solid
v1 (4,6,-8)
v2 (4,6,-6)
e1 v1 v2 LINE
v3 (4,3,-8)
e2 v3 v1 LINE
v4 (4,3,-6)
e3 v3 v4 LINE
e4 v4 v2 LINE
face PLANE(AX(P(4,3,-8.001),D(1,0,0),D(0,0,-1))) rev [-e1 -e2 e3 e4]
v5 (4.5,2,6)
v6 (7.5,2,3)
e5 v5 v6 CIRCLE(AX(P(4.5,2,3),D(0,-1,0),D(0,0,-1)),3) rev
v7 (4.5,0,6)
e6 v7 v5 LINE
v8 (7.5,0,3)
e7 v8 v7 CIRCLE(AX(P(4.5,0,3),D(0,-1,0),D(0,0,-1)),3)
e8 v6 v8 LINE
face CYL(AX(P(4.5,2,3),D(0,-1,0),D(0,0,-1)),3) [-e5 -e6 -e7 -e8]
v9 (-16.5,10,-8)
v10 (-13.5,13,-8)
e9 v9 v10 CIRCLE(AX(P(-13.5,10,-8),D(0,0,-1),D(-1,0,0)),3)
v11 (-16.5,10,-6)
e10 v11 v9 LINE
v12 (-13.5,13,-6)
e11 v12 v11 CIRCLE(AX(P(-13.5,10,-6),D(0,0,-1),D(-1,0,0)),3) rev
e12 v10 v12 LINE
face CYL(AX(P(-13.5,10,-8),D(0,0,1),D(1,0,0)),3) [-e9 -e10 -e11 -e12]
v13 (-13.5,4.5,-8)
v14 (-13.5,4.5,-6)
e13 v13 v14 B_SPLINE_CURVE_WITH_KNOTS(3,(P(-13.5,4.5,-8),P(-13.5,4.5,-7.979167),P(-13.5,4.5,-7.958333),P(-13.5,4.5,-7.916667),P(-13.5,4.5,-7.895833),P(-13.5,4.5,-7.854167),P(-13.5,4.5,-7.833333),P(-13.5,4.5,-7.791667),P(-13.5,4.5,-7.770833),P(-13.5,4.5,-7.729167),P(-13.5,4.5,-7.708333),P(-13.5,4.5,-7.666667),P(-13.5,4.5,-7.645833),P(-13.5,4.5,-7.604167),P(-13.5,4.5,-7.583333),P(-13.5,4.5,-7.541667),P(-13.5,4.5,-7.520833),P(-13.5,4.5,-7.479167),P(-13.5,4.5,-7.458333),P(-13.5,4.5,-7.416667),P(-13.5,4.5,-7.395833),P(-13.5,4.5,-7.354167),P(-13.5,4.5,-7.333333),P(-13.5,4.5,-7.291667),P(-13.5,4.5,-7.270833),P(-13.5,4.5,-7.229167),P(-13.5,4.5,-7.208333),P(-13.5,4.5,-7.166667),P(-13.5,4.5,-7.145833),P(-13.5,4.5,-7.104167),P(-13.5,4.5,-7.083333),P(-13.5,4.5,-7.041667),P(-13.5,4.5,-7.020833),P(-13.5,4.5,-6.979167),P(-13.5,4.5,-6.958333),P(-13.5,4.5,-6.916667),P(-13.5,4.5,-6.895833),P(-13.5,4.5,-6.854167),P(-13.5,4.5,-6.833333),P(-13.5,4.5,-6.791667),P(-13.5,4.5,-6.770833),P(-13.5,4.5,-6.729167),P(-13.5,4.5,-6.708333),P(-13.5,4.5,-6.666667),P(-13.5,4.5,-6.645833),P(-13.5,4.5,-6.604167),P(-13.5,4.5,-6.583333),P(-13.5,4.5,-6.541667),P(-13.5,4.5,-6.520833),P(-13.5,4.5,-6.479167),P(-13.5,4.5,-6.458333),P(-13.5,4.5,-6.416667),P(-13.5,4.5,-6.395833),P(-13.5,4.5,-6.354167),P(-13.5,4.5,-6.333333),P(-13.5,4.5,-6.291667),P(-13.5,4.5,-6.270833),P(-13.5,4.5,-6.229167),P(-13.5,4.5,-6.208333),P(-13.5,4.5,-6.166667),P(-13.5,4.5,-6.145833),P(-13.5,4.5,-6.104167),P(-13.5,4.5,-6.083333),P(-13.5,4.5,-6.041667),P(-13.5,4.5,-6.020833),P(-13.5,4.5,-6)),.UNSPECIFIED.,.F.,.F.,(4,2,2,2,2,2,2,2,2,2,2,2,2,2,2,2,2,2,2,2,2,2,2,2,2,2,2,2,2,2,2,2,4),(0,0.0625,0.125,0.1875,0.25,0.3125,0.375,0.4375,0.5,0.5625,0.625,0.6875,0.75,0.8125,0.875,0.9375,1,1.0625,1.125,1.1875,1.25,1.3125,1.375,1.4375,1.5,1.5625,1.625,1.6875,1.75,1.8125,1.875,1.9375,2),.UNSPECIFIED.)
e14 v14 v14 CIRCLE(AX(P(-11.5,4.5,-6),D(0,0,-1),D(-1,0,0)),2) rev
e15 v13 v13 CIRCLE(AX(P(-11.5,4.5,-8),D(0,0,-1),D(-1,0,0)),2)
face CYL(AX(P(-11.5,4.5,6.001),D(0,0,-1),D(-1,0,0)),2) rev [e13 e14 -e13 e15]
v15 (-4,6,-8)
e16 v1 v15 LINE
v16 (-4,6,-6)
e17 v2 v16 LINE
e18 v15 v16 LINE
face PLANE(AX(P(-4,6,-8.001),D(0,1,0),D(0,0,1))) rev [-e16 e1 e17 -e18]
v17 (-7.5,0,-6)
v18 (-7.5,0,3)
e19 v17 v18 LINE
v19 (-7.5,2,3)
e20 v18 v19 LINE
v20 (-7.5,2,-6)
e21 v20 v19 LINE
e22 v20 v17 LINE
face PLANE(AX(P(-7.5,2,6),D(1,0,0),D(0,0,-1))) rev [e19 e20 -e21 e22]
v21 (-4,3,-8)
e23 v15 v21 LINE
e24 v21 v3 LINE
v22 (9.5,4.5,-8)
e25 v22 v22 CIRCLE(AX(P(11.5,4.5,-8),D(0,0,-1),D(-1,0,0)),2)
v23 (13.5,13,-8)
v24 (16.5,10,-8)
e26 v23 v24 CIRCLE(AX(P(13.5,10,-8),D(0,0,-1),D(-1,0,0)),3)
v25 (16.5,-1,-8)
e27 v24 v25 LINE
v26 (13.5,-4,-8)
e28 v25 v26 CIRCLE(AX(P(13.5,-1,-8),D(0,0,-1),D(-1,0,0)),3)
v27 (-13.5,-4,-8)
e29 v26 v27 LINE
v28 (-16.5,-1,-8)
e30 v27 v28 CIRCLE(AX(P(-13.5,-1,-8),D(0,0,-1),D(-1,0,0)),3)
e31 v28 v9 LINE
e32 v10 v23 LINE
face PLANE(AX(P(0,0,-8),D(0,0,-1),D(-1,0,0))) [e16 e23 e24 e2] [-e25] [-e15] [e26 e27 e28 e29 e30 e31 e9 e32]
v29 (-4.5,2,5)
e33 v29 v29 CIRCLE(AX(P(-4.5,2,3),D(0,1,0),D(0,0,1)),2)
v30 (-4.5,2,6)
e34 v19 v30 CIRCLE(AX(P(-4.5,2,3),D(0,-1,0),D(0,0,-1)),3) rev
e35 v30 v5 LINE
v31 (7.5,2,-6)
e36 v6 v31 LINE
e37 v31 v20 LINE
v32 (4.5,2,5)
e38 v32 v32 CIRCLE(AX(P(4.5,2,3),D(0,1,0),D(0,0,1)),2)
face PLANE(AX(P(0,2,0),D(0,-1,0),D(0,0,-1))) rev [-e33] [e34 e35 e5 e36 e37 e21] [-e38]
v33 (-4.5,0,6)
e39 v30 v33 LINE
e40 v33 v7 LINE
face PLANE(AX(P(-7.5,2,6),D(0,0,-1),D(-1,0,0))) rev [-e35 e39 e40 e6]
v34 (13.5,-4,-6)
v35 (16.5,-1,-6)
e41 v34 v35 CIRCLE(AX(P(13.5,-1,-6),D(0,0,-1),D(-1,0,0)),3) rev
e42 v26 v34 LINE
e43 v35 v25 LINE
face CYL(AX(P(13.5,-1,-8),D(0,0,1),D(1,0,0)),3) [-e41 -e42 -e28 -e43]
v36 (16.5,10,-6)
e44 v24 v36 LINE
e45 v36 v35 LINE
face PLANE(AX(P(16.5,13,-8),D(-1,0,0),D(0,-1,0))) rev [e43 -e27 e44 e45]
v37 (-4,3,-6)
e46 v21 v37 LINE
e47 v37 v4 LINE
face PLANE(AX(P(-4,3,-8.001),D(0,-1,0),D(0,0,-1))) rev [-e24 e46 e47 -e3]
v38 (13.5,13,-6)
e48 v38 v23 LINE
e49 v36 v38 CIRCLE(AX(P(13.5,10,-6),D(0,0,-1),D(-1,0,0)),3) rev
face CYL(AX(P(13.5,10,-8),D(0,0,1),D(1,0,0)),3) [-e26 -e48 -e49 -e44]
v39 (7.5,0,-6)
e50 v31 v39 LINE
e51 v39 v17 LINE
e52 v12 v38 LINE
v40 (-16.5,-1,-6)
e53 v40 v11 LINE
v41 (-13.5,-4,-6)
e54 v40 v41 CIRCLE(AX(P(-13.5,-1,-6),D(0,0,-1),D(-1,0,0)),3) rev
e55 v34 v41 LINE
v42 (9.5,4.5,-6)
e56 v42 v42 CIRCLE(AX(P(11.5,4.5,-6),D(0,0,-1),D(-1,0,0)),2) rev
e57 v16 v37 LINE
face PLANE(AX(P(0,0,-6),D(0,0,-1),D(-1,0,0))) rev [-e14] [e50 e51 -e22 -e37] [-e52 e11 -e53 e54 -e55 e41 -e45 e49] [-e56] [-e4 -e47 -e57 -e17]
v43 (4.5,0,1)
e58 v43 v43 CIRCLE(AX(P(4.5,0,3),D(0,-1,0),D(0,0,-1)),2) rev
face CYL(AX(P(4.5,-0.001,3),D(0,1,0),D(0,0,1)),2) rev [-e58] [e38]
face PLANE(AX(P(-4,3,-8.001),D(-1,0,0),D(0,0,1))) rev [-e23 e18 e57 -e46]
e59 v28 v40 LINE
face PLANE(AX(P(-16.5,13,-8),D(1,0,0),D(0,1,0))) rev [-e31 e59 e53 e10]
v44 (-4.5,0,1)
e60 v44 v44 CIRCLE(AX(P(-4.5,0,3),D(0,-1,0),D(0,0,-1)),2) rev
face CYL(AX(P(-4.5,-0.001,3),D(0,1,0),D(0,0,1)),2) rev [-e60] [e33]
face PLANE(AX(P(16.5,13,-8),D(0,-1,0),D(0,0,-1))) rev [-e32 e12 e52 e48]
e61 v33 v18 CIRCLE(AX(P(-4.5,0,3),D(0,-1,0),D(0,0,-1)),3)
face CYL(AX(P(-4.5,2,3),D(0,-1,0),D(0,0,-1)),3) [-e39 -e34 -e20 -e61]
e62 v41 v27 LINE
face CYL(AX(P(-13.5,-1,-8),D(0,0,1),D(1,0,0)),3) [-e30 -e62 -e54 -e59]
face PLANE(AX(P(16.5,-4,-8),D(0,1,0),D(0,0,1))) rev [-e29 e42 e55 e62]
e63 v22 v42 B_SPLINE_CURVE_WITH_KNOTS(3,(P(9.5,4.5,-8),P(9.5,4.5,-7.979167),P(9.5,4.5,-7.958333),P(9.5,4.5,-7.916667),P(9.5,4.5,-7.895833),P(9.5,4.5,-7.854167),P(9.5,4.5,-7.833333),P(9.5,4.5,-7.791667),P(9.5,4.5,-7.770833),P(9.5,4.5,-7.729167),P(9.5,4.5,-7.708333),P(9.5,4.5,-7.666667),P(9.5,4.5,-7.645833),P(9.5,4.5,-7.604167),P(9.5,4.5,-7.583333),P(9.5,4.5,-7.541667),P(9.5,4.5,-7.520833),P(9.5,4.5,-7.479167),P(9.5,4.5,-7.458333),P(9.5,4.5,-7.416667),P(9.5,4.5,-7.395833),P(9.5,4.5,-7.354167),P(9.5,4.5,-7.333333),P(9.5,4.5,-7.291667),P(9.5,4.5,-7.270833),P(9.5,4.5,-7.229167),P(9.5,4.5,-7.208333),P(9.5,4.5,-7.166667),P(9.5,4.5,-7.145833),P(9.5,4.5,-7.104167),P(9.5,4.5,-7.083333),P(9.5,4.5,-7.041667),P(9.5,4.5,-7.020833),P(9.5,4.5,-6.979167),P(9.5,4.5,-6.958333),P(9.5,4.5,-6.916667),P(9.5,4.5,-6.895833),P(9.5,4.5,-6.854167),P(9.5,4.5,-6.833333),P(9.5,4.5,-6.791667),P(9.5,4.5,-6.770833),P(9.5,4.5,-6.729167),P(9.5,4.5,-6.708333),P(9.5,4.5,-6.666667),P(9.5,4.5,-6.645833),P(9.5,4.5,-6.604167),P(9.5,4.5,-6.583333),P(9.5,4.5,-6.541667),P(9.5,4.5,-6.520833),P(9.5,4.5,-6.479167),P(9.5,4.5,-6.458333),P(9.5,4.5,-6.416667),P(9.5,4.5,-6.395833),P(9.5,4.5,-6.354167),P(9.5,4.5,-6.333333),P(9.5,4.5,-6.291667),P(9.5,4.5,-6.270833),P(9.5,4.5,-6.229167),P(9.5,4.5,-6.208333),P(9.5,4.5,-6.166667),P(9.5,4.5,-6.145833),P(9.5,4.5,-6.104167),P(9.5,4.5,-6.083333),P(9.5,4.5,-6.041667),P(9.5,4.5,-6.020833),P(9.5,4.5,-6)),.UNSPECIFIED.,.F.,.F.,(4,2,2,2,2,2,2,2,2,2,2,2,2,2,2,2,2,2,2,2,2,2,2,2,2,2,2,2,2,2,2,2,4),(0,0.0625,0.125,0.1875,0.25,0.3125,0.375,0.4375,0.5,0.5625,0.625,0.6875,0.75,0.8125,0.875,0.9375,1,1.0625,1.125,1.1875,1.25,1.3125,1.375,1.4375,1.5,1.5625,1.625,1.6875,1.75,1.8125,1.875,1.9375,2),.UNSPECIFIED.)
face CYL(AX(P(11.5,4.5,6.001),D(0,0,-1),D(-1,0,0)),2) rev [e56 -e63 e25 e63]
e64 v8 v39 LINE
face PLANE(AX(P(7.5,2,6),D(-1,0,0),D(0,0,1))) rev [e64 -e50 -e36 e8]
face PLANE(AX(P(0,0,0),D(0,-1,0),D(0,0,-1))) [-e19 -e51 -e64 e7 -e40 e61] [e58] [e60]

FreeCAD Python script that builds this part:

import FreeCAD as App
import Part
import Sketcher
from FreeCAD import Vector


def edges_at(feature, points):
    """Names of the edges that pass closest to the given points."""
    edges = feature.Shape.Edges
    near = lambda p: min(range(len(edges)), key=lambda i: edges[i].distToShape(Part.Vertex(*p))[0])
    return sorted({f"Edge{near(p) + 1}" for p in points})


def add_polygon(sketch, points):
    """Adds a closed chain of lines whose ends are joined by coincident constraints."""
    first, n = sketch.GeometryCount, len(points)
    for a, b in zip(points, points[1:] + points[:1]):
        sketch.addGeometry(Part.LineSegment(App.Vector(*a, 0), App.Vector(*b, 0)), False)
    for i in range(n):
        sketch.addConstraint(Sketcher.Constraint("Coincident", first + i, 2, first + (i + 1) % n, 1))

doc = App.newDocument("Part")
body = doc.addObject("PartDesign::Body", "Body")

# Sketch on XZ plane
sketch1 = doc.addObject("Sketcher::SketchObject", "Sketch")
body.addObject(sketch1)
sketch1.AttachmentSupport = (doc.XZ_Plane, [""])
sketch1.MapMode = "FlatFace"
add_polygon(sketch1, [(-7.5, -6), (-7.5, 6), (7.5, 6), (7.5, -6)])  # lines 0-3
sketch1.addConstraint([
    Sketcher.Constraint("Vertical", 0),
    Sketcher.Constraint("Horizontal", 1),
    Sketcher.Constraint("Vertical", 2),
    Sketcher.Constraint("Horizontal", 3),
    Sketcher.Constraint("Symmetric", 0, 2, 2, 2, -1, 1),
    Sketcher.Constraint("DistanceX", 1, 1, 1, 2, 15.0),
    Sketcher.Constraint("DistanceY", 0, 1, 0, 2, 12.0),
])
pad1 = doc.addObject("PartDesign::Pad", "Pad")
body.addObject(pad1)
pad1.Profile = sketch1
pad1.Length = 2
pad1.Reversed = True

# Sketch on XZ plane
sketch2 = doc.addObject("Sketcher::SketchObject", "Sketch001")
body.addObject(sketch2)
sketch2.AttachmentSupport = (doc.XZ_Plane, [""])
sketch2.MapMode = "FlatFace"
sketch2.AttachmentOffset = App.Placement(Vector(0, 0, -2), App.Rotation())
sketch2.addGeometry(Part.Circle(Vector(-4.5, 3, 0), Vector(0, 0, 1), 2), False)
sketch2.addConstraint([
    Sketcher.Constraint("Diameter", 0, 4.0),
    Sketcher.Constraint("DistanceY", -1, 1, 0, 3, 3.0),
    Sketcher.Constraint("DistanceX", 0, 3, -1, 1, 4.5),
])
pocket1 = doc.addObject("PartDesign::Pocket", "Pocket")
body.addObject(pocket1)
pocket1.Profile = sketch2
pocket1.Type = "UpToFirst"
pocket1.Reversed = True

# Sketch on XZ plane
sketch3 = doc.addObject("Sketcher::SketchObject", "Sketch002")
body.addObject(sketch3)
sketch3.AttachmentSupport = (doc.XZ_Plane, [""])
sketch3.MapMode = "FlatFace"
sketch3.AttachmentOffset = App.Placement(Vector(0, 0, -2), App.Rotation())
sketch3.addGeometry(Part.Circle(Vector(4.5, 3, 0), Vector(0, 0, 1), 2), False)
sketch3.addConstraint([
    Sketcher.Constraint("Diameter", 0, 4.0),
    Sketcher.Constraint("DistanceY", -1, 1, 0, 3, 3.0),
    Sketcher.Constraint("DistanceX", -1, 1, 0, 3, 4.5),
])
pocket2 = doc.addObject("PartDesign::Pocket", "Pocket001")
body.addObject(pocket2)
pocket2.Profile = sketch3
pocket2.Type = "UpToFirst"
pocket2.Reversed = True

# Sketch on XY plane
sketch4 = doc.addObject("Sketcher::SketchObject", "Sketch003")
body.addObject(sketch4)
sketch4.AttachmentSupport = (doc.XY_Plane, [""])
sketch4.MapMode = "FlatFace"
sketch4.AttachmentOffset = App.Placement(Vector(0, 0, -6), App.Rotation())
add_polygon(sketch4, [(16.5, 13), (16.5, -4), (-16.5, -4), (-16.5, 13)])  # lines 0-3
sketch4.addConstraint([
    Sketcher.Constraint("Vertical", 0),
    Sketcher.Constraint("Horizontal", 1),
    Sketcher.Constraint("Vertical", 2),
    Sketcher.Constraint("Horizontal", 3),
    Sketcher.Constraint("DistanceX", 1, 2, 1, 1, 33.0),
    Sketcher.Constraint("DistanceY", 0, 2, 0, 1, 17.0),
    Sketcher.Constraint("DistanceY", 0, 2, -1, 1, 4.0),
    Sketcher.Constraint("DistanceX", -1, 1, 0, 2, 16.5),
])
pad2 = doc.addObject("PartDesign::Pad", "Pad001")
body.addObject(pad2)
pad2.Profile = sketch4
pad2.Length = 2
pad2.Reversed = True

# Sketch on XY plane
sketch5 = doc.addObject("Sketcher::SketchObject", "Sketch004")
body.addObject(sketch5)
sketch5.AttachmentSupport = (doc.XY_Plane, [""])
sketch5.MapMode = "FlatFace"
sketch5.AttachmentOffset = App.Placement(Vector(0, 0, -6), App.Rotation())
add_polygon(sketch5, [(-4, 6), (-4, 3), (4, 3), (4, 6)])  # lines 0-3
sketch5.addConstraint([
    Sketcher.Constraint("Vertical", 0),
    Sketcher.Constraint("Horizontal", 1),
    Sketcher.Constraint("Vertical", 2),
    Sketcher.Constraint("Horizontal", 3),
    Sketcher.Constraint("DistanceX", 1, 1, 1, 2, 8.0),
    Sketcher.Constraint("DistanceY", 0, 2, 0, 1, 3.0),
    Sketcher.Constraint("DistanceX", 0, 2, -1, 1, 4.0),
    Sketcher.Constraint("DistanceY", -1, 1, 0, 2, 3.0),
])
pocket3 = doc.addObject("PartDesign::Pocket", "Pocket002")
body.addObject(pocket3)
pocket3.Profile = sketch5
pocket3.Type = "UpToFirst"

# Sketch on XY plane
sketch6 = doc.addObject("Sketcher::SketchObject", "Sketch005")
body.addObject(sketch6)
sketch6.AttachmentSupport = (doc.XY_Plane, [""])
sketch6.MapMode = "FlatFace"
sketch6.AttachmentOffset = App.Placement(Vector(0, 0, -8), App.Rotation())
sketch6.addGeometry(Part.Circle(Vector(11.5, 4.5, 0), Vector(0, 0, 1), 2), False)
sketch6.addConstraint([
    Sketcher.Constraint("Diameter", 0, 4.0),
    Sketcher.Constraint("DistanceX", -1, 1, 0, 3, 11.5),
    Sketcher.Constraint("DistanceY", -1, 1, 0, 3, 4.5),
])
pocket4 = doc.addObject("PartDesign::Pocket", "Pocket003")
body.addObject(pocket4)
pocket4.Profile = sketch6
pocket4.Type = "UpToFirst"
pocket4.Reversed = True

# Sketch on XY plane
sketch7 = doc.addObject("Sketcher::SketchObject", "Sketch006")
body.addObject(sketch7)
sketch7.AttachmentSupport = (doc.XY_Plane, [""])
sketch7.MapMode = "FlatFace"
sketch7.AttachmentOffset = App.Placement(Vector(0, 0, -8), App.Rotation())
sketch7.addGeometry(Part.Circle(Vector(-11.5, 4.5, 0), Vector(0, 0, 1), 2), False)
sketch7.addConstraint([
    Sketcher.Constraint("Diameter", 0, 4.0),
    Sketcher.Constraint("DistanceX", 0, 3, -1, 1, 11.5),
    Sketcher.Constraint("DistanceY", -1, 1, 0, 3, 4.5),
])
pocket5 = doc.addObject("PartDesign::Pocket", "Pocket004")
body.addObject(pocket5)
pocket5.Profile = sketch7
pocket5.Type = "UpToFirst"
pocket5.Reversed = True
doc.recompute()

fillet = doc.addObject("PartDesign::Fillet", "Fillet")
body.addObject(fillet)
fillet.Base = (pocket5, edges_at(pocket5, [
    (16.5, 13, -7),
    (16.5, -4, -7),
    (-16.5, -4, -7),
    (-16.5, 13, -7),
]))
fillet.Radius = 3
doc.recompute()

fillet2 = doc.addObject("PartDesign::Fillet", "Fillet001")
body.addObject(fillet2)
fillet2.Base = (fillet, edges_at(fillet, [(7.5, 1, 6), (-7.5, 1, 6)]))
fillet2.Radius = 3

doc.recompute()
